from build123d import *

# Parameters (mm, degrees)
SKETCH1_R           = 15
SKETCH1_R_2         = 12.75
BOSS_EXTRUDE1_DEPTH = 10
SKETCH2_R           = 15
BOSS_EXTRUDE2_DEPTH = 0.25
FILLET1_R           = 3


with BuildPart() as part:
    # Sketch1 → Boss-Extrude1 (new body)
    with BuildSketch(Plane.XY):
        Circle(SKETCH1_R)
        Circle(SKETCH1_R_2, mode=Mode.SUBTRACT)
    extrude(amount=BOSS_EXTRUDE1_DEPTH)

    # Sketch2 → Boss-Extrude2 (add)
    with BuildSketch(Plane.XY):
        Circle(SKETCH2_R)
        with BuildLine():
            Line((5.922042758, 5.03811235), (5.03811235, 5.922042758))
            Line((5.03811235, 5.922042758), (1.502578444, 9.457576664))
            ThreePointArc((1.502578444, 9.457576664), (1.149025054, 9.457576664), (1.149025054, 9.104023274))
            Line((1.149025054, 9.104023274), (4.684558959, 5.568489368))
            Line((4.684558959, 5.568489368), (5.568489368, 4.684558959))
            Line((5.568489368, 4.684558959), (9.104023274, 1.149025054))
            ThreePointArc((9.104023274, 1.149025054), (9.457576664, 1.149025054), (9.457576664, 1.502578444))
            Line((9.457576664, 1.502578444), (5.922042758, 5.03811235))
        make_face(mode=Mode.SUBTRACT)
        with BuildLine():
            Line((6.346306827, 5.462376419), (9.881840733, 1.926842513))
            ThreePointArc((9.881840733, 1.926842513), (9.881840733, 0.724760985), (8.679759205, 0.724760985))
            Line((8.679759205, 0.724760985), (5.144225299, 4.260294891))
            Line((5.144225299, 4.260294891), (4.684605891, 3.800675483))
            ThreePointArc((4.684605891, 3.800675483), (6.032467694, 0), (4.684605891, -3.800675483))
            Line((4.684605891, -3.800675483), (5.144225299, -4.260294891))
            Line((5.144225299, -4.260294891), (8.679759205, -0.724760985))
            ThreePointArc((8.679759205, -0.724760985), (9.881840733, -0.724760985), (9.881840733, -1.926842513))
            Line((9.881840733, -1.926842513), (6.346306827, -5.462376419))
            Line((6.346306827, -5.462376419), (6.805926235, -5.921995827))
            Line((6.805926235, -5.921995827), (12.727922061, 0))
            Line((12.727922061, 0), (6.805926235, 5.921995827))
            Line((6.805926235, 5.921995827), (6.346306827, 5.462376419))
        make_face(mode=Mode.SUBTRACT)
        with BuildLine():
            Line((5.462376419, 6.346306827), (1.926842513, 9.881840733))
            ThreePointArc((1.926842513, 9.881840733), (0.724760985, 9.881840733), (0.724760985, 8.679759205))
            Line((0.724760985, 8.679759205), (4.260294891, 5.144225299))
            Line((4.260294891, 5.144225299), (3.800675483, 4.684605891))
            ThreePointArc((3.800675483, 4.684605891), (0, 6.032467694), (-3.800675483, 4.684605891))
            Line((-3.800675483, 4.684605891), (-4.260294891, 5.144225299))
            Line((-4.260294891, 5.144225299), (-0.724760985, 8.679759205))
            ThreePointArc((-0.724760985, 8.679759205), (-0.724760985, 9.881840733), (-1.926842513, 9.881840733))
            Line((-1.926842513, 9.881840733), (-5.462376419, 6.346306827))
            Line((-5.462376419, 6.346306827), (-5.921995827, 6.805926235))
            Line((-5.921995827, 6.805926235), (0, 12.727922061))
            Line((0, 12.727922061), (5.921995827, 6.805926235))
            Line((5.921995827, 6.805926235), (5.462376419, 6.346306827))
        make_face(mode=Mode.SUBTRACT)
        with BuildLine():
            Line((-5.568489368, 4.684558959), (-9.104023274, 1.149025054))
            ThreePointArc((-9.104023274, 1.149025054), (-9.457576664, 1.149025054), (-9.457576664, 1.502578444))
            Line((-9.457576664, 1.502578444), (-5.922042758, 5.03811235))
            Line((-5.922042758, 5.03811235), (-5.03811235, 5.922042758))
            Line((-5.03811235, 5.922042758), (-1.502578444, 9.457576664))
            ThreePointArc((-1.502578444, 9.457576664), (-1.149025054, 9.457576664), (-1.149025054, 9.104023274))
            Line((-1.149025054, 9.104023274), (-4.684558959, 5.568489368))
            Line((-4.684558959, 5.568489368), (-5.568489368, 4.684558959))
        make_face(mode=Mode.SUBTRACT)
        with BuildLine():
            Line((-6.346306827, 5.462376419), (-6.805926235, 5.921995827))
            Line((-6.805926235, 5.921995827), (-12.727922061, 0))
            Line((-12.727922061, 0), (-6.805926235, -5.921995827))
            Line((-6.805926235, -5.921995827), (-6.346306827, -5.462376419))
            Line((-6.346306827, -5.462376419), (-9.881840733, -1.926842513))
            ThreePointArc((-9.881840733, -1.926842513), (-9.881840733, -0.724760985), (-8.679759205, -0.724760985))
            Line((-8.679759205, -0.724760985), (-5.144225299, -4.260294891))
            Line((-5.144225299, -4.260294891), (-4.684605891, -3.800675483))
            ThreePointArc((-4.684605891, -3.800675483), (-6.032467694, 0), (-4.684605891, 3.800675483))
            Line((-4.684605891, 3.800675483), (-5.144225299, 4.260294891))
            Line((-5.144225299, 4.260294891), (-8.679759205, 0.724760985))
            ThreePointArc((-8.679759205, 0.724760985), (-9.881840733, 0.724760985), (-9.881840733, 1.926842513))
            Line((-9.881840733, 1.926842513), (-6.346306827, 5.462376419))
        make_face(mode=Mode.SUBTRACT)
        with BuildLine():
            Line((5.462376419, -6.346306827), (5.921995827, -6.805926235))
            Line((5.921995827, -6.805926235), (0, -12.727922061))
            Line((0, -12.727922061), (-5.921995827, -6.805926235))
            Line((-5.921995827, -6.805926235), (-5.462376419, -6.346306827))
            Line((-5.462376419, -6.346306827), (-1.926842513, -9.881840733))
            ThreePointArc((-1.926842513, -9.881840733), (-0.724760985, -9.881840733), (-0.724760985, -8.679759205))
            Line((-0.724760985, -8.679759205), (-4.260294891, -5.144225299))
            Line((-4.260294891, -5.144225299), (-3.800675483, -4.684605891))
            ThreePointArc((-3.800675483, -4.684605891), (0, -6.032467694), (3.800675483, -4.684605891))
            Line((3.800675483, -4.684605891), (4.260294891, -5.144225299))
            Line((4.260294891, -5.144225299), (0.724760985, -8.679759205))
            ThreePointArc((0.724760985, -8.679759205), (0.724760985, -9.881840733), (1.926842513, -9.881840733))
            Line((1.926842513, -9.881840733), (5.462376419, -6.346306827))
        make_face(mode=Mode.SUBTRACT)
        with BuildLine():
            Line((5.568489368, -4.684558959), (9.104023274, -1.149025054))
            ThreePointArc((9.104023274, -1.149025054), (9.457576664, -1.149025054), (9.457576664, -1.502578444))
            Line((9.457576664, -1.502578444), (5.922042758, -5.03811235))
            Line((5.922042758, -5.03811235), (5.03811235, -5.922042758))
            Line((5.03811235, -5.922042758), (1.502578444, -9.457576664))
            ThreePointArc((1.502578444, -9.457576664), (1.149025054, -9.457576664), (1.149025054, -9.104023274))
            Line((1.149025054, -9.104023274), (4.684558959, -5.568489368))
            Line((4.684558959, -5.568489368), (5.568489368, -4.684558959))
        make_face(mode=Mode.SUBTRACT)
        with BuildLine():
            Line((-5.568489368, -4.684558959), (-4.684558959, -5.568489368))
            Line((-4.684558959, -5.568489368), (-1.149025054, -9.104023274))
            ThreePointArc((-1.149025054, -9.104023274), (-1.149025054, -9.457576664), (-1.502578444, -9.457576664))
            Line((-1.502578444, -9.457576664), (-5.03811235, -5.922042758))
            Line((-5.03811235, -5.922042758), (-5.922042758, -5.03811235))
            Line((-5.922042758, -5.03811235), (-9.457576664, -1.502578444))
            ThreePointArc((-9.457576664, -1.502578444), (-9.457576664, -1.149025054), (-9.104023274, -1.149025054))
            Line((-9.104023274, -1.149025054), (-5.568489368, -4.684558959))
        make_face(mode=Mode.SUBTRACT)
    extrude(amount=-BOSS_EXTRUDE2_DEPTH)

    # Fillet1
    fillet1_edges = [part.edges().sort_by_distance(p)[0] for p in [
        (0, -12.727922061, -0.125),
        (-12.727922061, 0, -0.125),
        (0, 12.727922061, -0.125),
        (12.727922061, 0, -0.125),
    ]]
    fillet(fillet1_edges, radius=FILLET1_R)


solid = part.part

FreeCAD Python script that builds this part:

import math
import FreeCAD as App
import Part
import Sketcher
from FreeCAD import Vector
Q = App.Units.Quantity


def edges_at(feature, points):
    """Names of the edges that pass closest to the given points."""
    edges = feature.Shape.Edges
    near = lambda p: min(range(len(edges)), key=lambda i: edges[i].distToShape(Part.Vertex(*p))[0])
    return sorted({f"Edge{near(p) + 1}" for p in points})

doc = App.newDocument("Part")
params = doc.addObject("Spreadsheet::Sheet", "Params")
for row, (alias, value) in enumerate([
    ("sketch1_diameter", "30 mm"),
    ("sketch1_diameter2", "25.5 mm"),
    ("pad1_length", "10 mm"),
    ("sketch2_diameter", "30 mm"),
    ("sketch2_radius", "0.25 mm"),
    ("sketch2_radius2", "0.85 mm"),
    ("sketch2_length", "5 mm"),
    ("sketch2_length2", "0.65 mm"),
    ("pad2_length", "0.25 mm"),
    ("fillet_radius", "3 mm"),
], start=1):
    params.set(f"A{row}", alias)
    params.set(f"B{row}", "=" + value)
    params.setAlias(f"B{row}", alias)

body = doc.addObject("PartDesign::Body", "Body")

# Sketch on XY plane
sketch1 = doc.addObject("Sketcher::SketchObject", "Sketch")
body.addObject(sketch1)
sketch1.AttachmentSupport = (doc.XY_Plane, [""])
sketch1.MapMode = "FlatFace"
sketch1.addGeometry(Part.Circle(Vector(0, 0, 0), Vector(0, 0, 1), 15), False)
sketch1.addGeometry(Part.Circle(Vector(0, 0, 0), Vector(0, 0, 1), 12.75), False)
sketch1.addConstraint(Sketcher.Constraint("Coincident", 0, 3, -1, 1))
sketch1.addConstraint(Sketcher.Constraint("Coincident", 1, 3, -1, 1))
sketch1.addConstraint(Sketcher.Constraint("Diameter", 0, Q("30 mm")))
sketch1.addConstraint(Sketcher.Constraint("Diameter", 1, Q("25.5 mm")))
sketch1.setExpression("Constraints[2]", "Params.sketch1_diameter")
sketch1.setExpression("Constraints[3]", "Params.sketch1_diameter2")
pad1 = doc.addObject("PartDesign::Pad", "Pad")
body.addObject(pad1)
pad1.Profile = sketch1
pad1.setExpression("Length", "Params.pad1_length")

# Sketch on XY plane
sketch2 = doc.addObject("Sketcher::SketchObject", "Sketch001")
body.addObject(sketch2)
sketch2.AttachmentSupport = (doc.XY_Plane, [""])
sketch2.MapMode = "FlatFace"
sketch2.addGeometry(Part.Circle(Vector(0, 0, 0), Vector(0, 0, 1), 15), False)
sketch2.addGeometry(Part.LineSegment(Vector(-9.104023, -1.149025, 0), Vector(-5.568489, -4.684559, 0)), False)
sketch2.addGeometry(Part.LineSegment(Vector(-5.568489, -4.684559, 0), Vector(-4.684559, -5.568489, 0)), False)
sketch2.addGeometry(Part.LineSegment(Vector(-4.684559, -5.568489, 0), Vector(-1.149025, -9.104023, 0)), False)
sketch2.addGeometry(Part.ArcOfCircle(Part.Circle(Vector(-1.325802, -9.2808, 0), Vector(0, 0, 1), 0.25), math.radians(-135), math.radians(45)), False)
sketch2.addGeometry(Part.LineSegment(Vector(-1.502578, -9.457577, 0), Vector(-9.457577, -1.502578, 0)), False)
sketch2.addGeometry(Part.ArcOfCircle(Part.Circle(Vector(-9.2808, -1.325802, 0), Vector(0, 0, 1), 0.25), math.radians(45), math.radians(225)), False)
sketch2.addGeometry(Part.LineSegment(Vector(1.926843, -9.881841, 0), Vector(5.462376, -6.346307, 0)), False)
sketch2.addGeometry(Part.LineSegment(Vector(5.462376, -6.346307, 0), Vector(5.921996, -6.805926, 0)), False)
sketch2.addGeometry(Part.LineSegment(Vector(5.921996, -6.805926, 0), Vector(0, -12.727922, 0)), False)
sketch2.addGeometry(Part.LineSegment(Vector(0, -12.727922, 0), Vector(-5.921996, -6.805926, 0)), False)
sketch2.addGeometry(Part.LineSegment(Vector(-5.921996, -6.805926, 0), Vector(-5.462376, -6.346307, 0)), False)
sketch2.addGeometry(Part.LineSegment(Vector(-5.462376, -6.346307, 0), Vector(-1.926843, -9.881841, 0)), False)
sketch2.addGeometry(Part.ArcOfCircle(Part.Circle(Vector(-1.325802, -9.2808, 0), Vector(0, 0, 1), 0.85), math.radians(-135), math.radians(45)), False)
sketch2.addGeometry(Part.LineSegment(Vector(-0.724761, -8.679759, 0), Vector(-4.260295, -5.144225, 0)), False)
sketch2.addGeometry(Part.LineSegment(Vector(-4.260295, -5.144225, 0), Vector(-3.800675, -4.684606, 0)), False)
sketch2.addGeometry(Part.ArcOfCircle(Part.Circle(Vector(0, 0, 0), Vector(0, 0, 1), 6.032468), math.radians(-129.052823), math.radians(-50.947177)), False)
sketch2.addGeometry(Part.LineSegment(Vector(3.800675, -4.684606, 0), Vector(4.260295, -5.144225, 0)), False)
sketch2.addGeometry(Part.LineSegment(Vector(4.260295, -5.144225, 0), Vector(0.724761, -8.679759, 0)), False)
sketch2.addGeometry(Part.ArcOfCircle(Part.Circle(Vector(1.325802, -9.2808, 0), Vector(0, 0, 1), 0.85), math.radians(135), math.radians(315)), False)
sketch2.addGeometry(Part.LineSegment(Vector(4.684559, -5.568489, 0), Vector(5.568489, -4.684559, 0)), False)
sketch2.addGeometry(Part.LineSegment(Vector(5.568489, -4.684559, 0), Vector(9.104023, -1.149025, 0)), False)
sketch2.addGeometry(Part.ArcOfCircle(Part.Circle(Vector(9.2808, -1.325802, 0), Vector(0, 0, 1), 0.25), math.radians(-45), math.radians(135)), False)
sketch2.addGeometry(Part.LineSegment(Vector(9.457577, -1.502578, 0), Vector(1.502578, -9.457577, 0)), False)
sketch2.addGeometry(Part.ArcOfCircle(Part.Circle(Vector(1.325802, -9.2808, 0), Vector(0, 0, 1), 0.25), math.radians(135), math.radians(315)), False)
sketch2.addGeometry(Part.LineSegment(Vector(1.149025, -9.104023, 0), Vector(4.684559, -5.568489, 0)), False)
sketch2.addGeometry(Part.LineSegment(Vector(-6.805926, 5.921996, 0), Vector(-6.346307, 5.462376, 0)), False)
sketch2.addGeometry(Part.LineSegment(Vector(-6.346307, 5.462376, 0), Vector(-9.881841, 1.926843, 0)), False)
sketch2.addGeometry(Part.ArcOfCircle(Part.Circle(Vector(-9.2808, 1.325802, 0), Vector(0, 0, 1), 0.85), math.radians(135), math.radians(315)), False)
sketch2.addGeometry(Part.LineSegment(Vector(-8.679759, 0.724761, 0), Vector(-5.144225, 4.260295, 0)), False)
sketch2.addGeometry(Part.LineSegment(Vector(-5.144225, 4.260295, 0), Vector(-4.684606, 3.800675, 0)), False)
sketch2.addGeometry(Part.ArcOfCircle(Part.Circle(Vector(0, 0, 0), Vector(0, 0, 1), 6.032468), math.radians(140.947177), math.radians(219.052823)), False)
sketch2.addGeometry(Part.LineSegment(Vector(-4.684606, -3.800675, 0), Vector(-5.144225, -4.260295, 0)), False)
sketch2.addGeometry(Part.LineSegment(Vector(-5.144225, -4.260295, 0), Vector(-8.679759, -0.724761, 0)), False)
sketch2.addGeometry(Part.ArcOfCircle(Part.Circle(Vector(-9.2808, -1.325802, 0), Vector(0, 0, 1), 0.85), math.radians(45), math.radians(225)), False)
sketch2.addGeometry(Part.LineSegment(Vector(-9.881841, -1.926843, 0), Vector(-6.346307, -5.462376, 0)), False)
sketch2.addGeometry(Part.LineSegment(Vector(-6.346307, -5.462376, 0), Vector(-6.805926, -5.921996, 0)), False)
sketch2.addGeometry(Part.LineSegment(Vector(-6.805926, -5.921996, 0), Vector(-12.727922, 0, 0)), False)
sketch2.addGeometry(Part.LineSegment(Vector(-12.727922, 0, 0), Vector(-6.805926, 5.921996, 0)), False)
sketch2.addGeometry(Part.LineSegment(Vector(-4.684559, 5.568489, 0), Vector(-5.568489, 4.684559, 0)), False)
sketch2.addGeometry(Part.LineSegment(Vector(-5.568489, 4.684559, 0), Vector(-9.104023, 1.149025, 0)), False)
sketch2.addGeometry(Part.ArcOfCircle(Part.Circle(Vector(-9.2808, 1.325802, 0), Vector(0, 0, 1), 0.25), math.radians(135), math.radians(315)), False)
sketch2.addGeometry(Part.LineSegment(Vector(-9.457577, 1.502578, 0), Vector(-1.502578, 9.457577, 0)), False)
sketch2.addGeometry(Part.ArcOfCircle(Part.Circle(Vector(-1.325802, 9.2808, 0), Vector(0, 0, 1), 0.25), math.radians(-45), math.radians(135)), False)
sketch2.addGeometry(Part.LineSegment(Vector(-1.149025, 9.104023, 0), Vector(-4.684559, 5.568489, 0)), False)
sketch2.addGeometry(Part.ArcOfCircle(Part.Circle(Vector(1.325802, 9.2808, 0), Vector(0, 0, 1), 0.25), math.radians(45), math.radians(225)), False)
sketch2.addGeometry(Part.LineSegment(Vector(1.502578, 9.457577, 0), Vector(9.457577, 1.502578, 0)), False)
sketch2.addGeometry(Part.ArcOfCircle(Part.Circle(Vector(9.2808, 1.325802, 0), Vector(0, 0, 1), 0.25), math.radians(-135), math.radians(45)), False)
sketch2.addGeometry(Part.LineSegment(Vector(9.104023, 1.149025, 0), Vector(5.568489, 4.684559, 0)), False)
sketch2.addGeometry(Part.LineSegment(Vector(5.568489, 4.684559, 0), Vector(4.684559, 5.568489, 0)), False)
sketch2.addGeometry(Part.LineSegment(Vector(4.684559, 5.568489, 0), Vector(1.149025, 9.104023, 0)), False)
sketch2.addGeometry(Part.LineSegment(Vector(9.881841, 1.926843, 0), Vector(6.346307, 5.462376, 0)), False)
sketch2.addGeometry(Part.LineSegment(Vector(6.346307, 5.462376, 0), Vector(6.805926, 5.921996, 0)), False)
sketch2.addGeometry(Part.LineSegment(Vector(6.805926, 5.921996, 0), Vector(12.727922, 0, 0)), False)
sketch2.addGeometry(Part.LineSegment(Vector(12.727922, 0, 0), Vector(6.805926, -5.921996, 0)), False)
sketch2.addGeometry(Part.LineSegment(Vector(6.805926, -5.921996, 0), Vector(6.346307, -5.462376, 0)), False)
sketch2.addGeometry(Part.LineSegment(Vector(6.346307, -5.462376, 0), Vector(9.881841, -1.926843, 0)), False)
sketch2.addGeometry(Part.ArcOfCircle(Part.Circle(Vector(9.2808, -1.325802, 0), Vector(0, 0, 1), 0.85), math.radians(-45), math.radians(135)), False)
sketch2.addGeometry(Part.LineSegment(Vector(8.679759, -0.724761, 0), Vector(5.144225, -4.260295, 0)), False)
sketch2.addGeometry(Part.LineSegment(Vector(5.144225, -4.260295, 0), Vector(4.684606, -3.800675, 0)), False)
sketch2.addGeometry(Part.ArcOfCircle(Part.Circle(Vector(0, 0, 0), Vector(0, 0, 1), 6.032468), math.radians(-39.052823), math.radians(39.052823)), False)
sketch2.addGeometry(Part.LineSegment(Vector(4.684606, 3.800675, 0), Vector(5.144225, 4.260295, 0)), False)
sketch2.addGeometry(Part.LineSegment(Vector(5.144225, 4.260295, 0), Vector(8.679759, 0.724761, 0)), False)
sketch2.addGeometry(Part.ArcOfCircle(Part.Circle(Vector(9.2808, 1.325802, 0), Vector(0, 0, 1), 0.85), math.radians(-135), math.radians(45)), False)
sketch2.addGeometry(Part.LineSegment(Vector(5.921996, 6.805926, 0), Vector(5.462376, 6.346307, 0)), False)
sketch2.addGeometry(Part.LineSegment(Vector(5.462376, 6.346307, 0), Vector(1.926843, 9.881841, 0)), False)
sketch2.addGeometry(Part.ArcOfCircle(Part.Circle(Vector(1.325802, 9.2808, 0), Vector(0, 0, 1), 0.85), math.radians(45), math.radians(225)), False)
sketch2.addGeometry(Part.LineSegment(Vector(0.724761, 8.679759, 0), Vector(4.260295, 5.144225, 0)), False)
sketch2.addGeometry(Part.LineSegment(Vector(4.260295, 5.144225, 0), Vector(3.800675, 4.684606, 0)), False)
sketch2.addGeometry(Part.ArcOfCircle(Part.Circle(Vector(0, 0, 0), Vector(0, 0, 1), 6.032468), math.radians(50.947177), math.radians(129.052823)), False)
sketch2.addGeometry(Part.LineSegment(Vector(-3.800675, 4.684606, 0), Vector(-4.260295, 5.144225, 0)), False)
sketch2.addGeometry(Part.LineSegment(Vector(-4.260295, 5.144225, 0), Vector(-0.724761, 8.679759, 0)), False)
sketch2.addGeometry(Part.ArcOfCircle(Part.Circle(Vector(-1.325802, 9.2808, 0), Vector(0, 0, 1), 0.85), math.radians(-45), math.radians(135)), False)
sketch2.addGeometry(Part.LineSegment(Vector(-1.926843, 9.881841, 0), Vector(-5.462376, 6.346307, 0)), False)
sketch2.addGeometry(Part.LineSegment(Vector(-5.462376, 6.346307, 0), Vector(-5.921996, 6.805926, 0)), False)
sketch2.addGeometry(Part.LineSegment(Vector(-5.921996, 6.805926, 0), Vector(0, 12.727922, 0)), False)
sketch2.addGeometry(Part.LineSegment(Vector(0, 12.727922, 0), Vector(5.921996, 6.805926, 0)), False)
sketch2.addConstraint(Sketcher.Constraint("Coincident", 1, 2, 2, 1))
sketch2.addConstraint(Sketcher.Constraint("Coincident", 2, 2, 3, 1))
sketch2.addConstraint(Sketcher.Constraint("Tangent", 3, 2, 4, 2))
sketch2.addConstraint(Sketcher.Constraint("Tangent", 4, 1, 5, 1))
sketch2.addConstraint(Sketcher.Constraint("Tangent", 5, 2, 6, 2))
sketch2.addConstraint(Sketcher.Constraint("Tangent", 6, 1, 1, 1))
sketch2.addConstraint(Sketcher.Constraint("Coincident", 7, 2, 8, 1))
sketch2.addConstraint(Sketcher.Constraint("Coincident", 8, 2, 9, 1))
sketch2.addConstraint(Sketcher.Constraint("Coincident", 9, 2, 10, 1))
sketch2.addConstraint(Sketcher.Constraint("Coincident", 10, 2, 11, 1))
sketch2.addConstraint(Sketcher.Constraint("Coincident", 11, 2, 12, 1))
sketch2.addConstraint(Sketcher.Constraint("Tangent", 12, 2, 13, 1))
sketch2.addConstraint(Sketcher.Constraint("Tangent", 13, 2, 14, 1))
sketch2.addConstraint(Sketcher.Constraint("Coincident", 14, 2, 15, 1))
sketch2.addConstraint(Sketcher.Constraint("Coincident", 15, 2, 16, 1))
sketch2.addConstraint(Sketcher.Constraint("Coincident", 16, 2, 17, 1))
sketch2.addConstraint(Sketcher.Constraint("Coincident", 17, 2, 18, 1))
sketch2.addConstraint(Sketcher.Constraint("Tangent", 18, 2, 19, 1))
sketch2.addConstraint(Sketcher.Constraint("Tangent", 19, 2, 7, 1))
sketch2.addConstraint(Sketcher.Constraint("Coincident", 20, 2, 21, 1))
sketch2.addConstraint(Sketcher.Constraint("Tangent", 21, 2, 22, 2))
sketch2.addConstraint(Sketcher.Constraint("Tangent", 22, 1, 23, 1))
sketch2.addConstraint(Sketcher.Constraint("Tangent", 23, 2, 24, 2))
sketch2.addConstraint(Sketcher.Constraint("Tangent", 24, 1, 25, 1))
sketch2.addConstraint(Sketcher.Constraint("Coincident", 25, 2, 20, 1))
sketch2.addConstraint(Sketcher.Constraint("Coincident", 26, 2, 27, 1))
sketch2.addConstraint(Sketcher.Constraint("Tangent", 27, 2, 28, 1))
sketch2.addConstraint(Sketcher.Constraint("Tangent", 28, 2, 29, 1))
sketch2.addConstraint(Sketcher.Constraint("Coincident", 29, 2, 30, 1))
sketch2.addConstraint(Sketcher.Constraint("Coincident", 30, 2, 31, 1))
sketch2.addConstraint(Sketcher.Constraint("Coincident", 31, 2, 32, 1))
sketch2.addConstraint(Sketcher.Constraint("Coincident", 32, 2, 33, 1))
sketch2.addConstraint(Sketcher.Constraint("Tangent", 33, 2, 34, 1))
sketch2.addConstraint(Sketcher.Constraint("Tangent", 34, 2, 35, 1))
sketch2.addConstraint(Sketcher.Constraint("Coincident", 35, 2, 36, 1))
sketch2.addConstraint(Sketcher.Constraint("Coincident", 36, 2, 37, 1))
sketch2.addConstraint(Sketcher.Constraint("Coincident", 37, 2, 38, 1))
sketch2.addConstraint(Sketcher.Constraint("Coincident", 38, 2, 26, 1))
sketch2.addConstraint(Sketcher.Constraint("Coincident", 39, 2, 40, 1))
sketch2.addConstraint(Sketcher.Constraint("Tangent", 40, 2, 41, 2))
sketch2.addConstraint(Sketcher.Constraint("Tangent", 41, 1, 42, 1))
sketch2.addConstraint(Sketcher.Constraint("Tangent", 42, 2, 43, 2))
sketch2.addConstraint(Sketcher.Constraint("Tangent", 43, 1, 44, 1))
sketch2.addConstraint(Sketcher.Constraint("Coincident", 44, 2, 39, 1))
sketch2.addConstraint(Sketcher.Constraint("Tangent", 45, 1, 46, 1))
sketch2.addConstraint(Sketcher.Constraint("Tangent", 46, 2, 47, 2))
sketch2.addConstraint(Sketcher.Constraint("Tangent", 47, 1, 48, 1))
sketch2.addConstraint(Sketcher.Constraint("Coincident", 48, 2, 49, 1))
sketch2.addConstraint(Sketcher.Constraint("Coincident", 49, 2, 50, 1))
sketch2.addConstraint(Sketcher.Constraint("Tangent", 50, 2, 45, 2))
sketch2.addConstraint(Sketcher.Constraint("Coincident", 51, 2, 52, 1))
sketch2.addConstraint(Sketcher.Constraint("Coincident", 52, 2, 53, 1))
sketch2.addConstraint(Sketcher.Constraint("Coincident", 53, 2, 54, 1))
sketch2.addConstraint(Sketcher.Constraint("Coincident", 54, 2, 55, 1))
sketch2.addConstraint(Sketcher.Constraint("Coincident", 55, 2, 56, 1))
sketch2.addConstraint(Sketcher.Constraint("Tangent", 56, 2, 57, 1))
sketch2.addConstraint(Sketcher.Constraint("Tangent", 57, 2, 58, 1))
sketch2.addConstraint(Sketcher.Constraint("Coincident", 58, 2, 59, 1))
sketch2.addConstraint(Sketcher.Constraint("Coincident", 59, 2, 60, 1))
sketch2.addConstraint(Sketcher.Constraint("Coincident", 60, 2, 61, 1))
sketch2.addConstraint(Sketcher.Constraint("Coincident", 61, 2, 62, 1))
sketch2.addConstraint(Sketcher.Constraint("Tangent", 62, 2, 63, 1))
sketch2.addConstraint(Sketcher.Constraint("Tangent", 63, 2, 51, 1))
sketch2.addConstraint(Sketcher.Constraint("Coincident", 64, 2, 65, 1))
sketch2.addConstraint(Sketcher.Constraint("Tangent", 65, 2, 66, 1))
sketch2.addConstraint(Sketcher.Constraint("Tangent", 66, 2, 67, 1))
sketch2.addConstraint(Sketcher.Constraint("Coincident", 67, 2, 68, 1))
sketch2.addConstraint(Sketcher.Constraint("Coincident", 68, 2, 69, 1))
sketch2.addConstraint(Sketcher.Constraint("Coincident", 69, 2, 70, 1))
sketch2.addConstraint(Sketcher.Constraint("Coincident", 70, 2, 71, 1))
sketch2.addConstraint(Sketcher.Constraint("Tangent", 71, 2, 72, 1))
sketch2.addConstraint(Sketcher.Constraint("Tangent", 72, 2, 73, 1))
sketch2.addConstraint(Sketcher.Constraint("Coincident", 73, 2, 74, 1))
sketch2.addConstraint(Sketcher.Constraint("Coincident", 74, 2, 75, 1))
sketch2.addConstraint(Sketcher.Constraint("Coincident", 75, 2, 76, 1))
sketch2.addConstraint(Sketcher.Constraint("Coincident", 76, 2, 64, 1))
sketch2.addConstraint(Sketcher.Constraint("Coincident", 0, 3, -1, 1))
sketch2.addConstraint(Sketcher.Constraint("Coincident", 16, 3, -1, 1))
sketch2.addConstraint(Sketcher.Constraint("Coincident", 31, 3, -1, 1))
sketch2.addConstraint(Sketcher.Constraint("Coincident", 60, 3, -1, 1))
sketch2.addConstraint(Sketcher.Constraint("Coincident", 69, 3, -1, 1))
sketch2.addConstraint(Sketcher.Constraint("Coincident", 13, 3, 4, 3))
sketch2.addConstraint(Sketcher.Constraint("Coincident", 24, 3, 19, 3))
sketch2.addConstraint(Sketcher.Constraint("Coincident", 34, 3, 6, 3))
sketch2.addConstraint(Sketcher.Constraint("Coincident", 41, 3, 28, 3))
sketch2.addConstraint(Sketcher.Constraint("Coincident", 57, 3, 22, 3))
sketch2.addConstraint(Sketcher.Constraint("Coincident", 63, 3, 47, 3))
sketch2.addConstraint(Sketcher.Constraint("Coincident", 66, 3, 45, 3))
sketch2.addConstraint(Sketcher.Constraint("Coincident", 72, 3, 43, 3))
sketch2.addConstraint(Sketcher.Constraint("Equal", 4, 6))
sketch2.addConstraint(Sketcher.Constraint("Equal", 13, 19))
sketch2.addConstraint(Sketcher.Constraint("Equal", 6, 22))
sketch2.addConstraint(Sketcher.Constraint("Equal", 22, 24))
sketch2.addConstraint(Sketcher.Constraint("Equal", 19, 28))
sketch2.addConstraint(Sketcher.Constraint("Equal", 16, 31))
sketch2.addConstraint(Sketcher.Constraint("Equal", 28, 34))
sketch2.addConstraint(Sketcher.Constraint("Equal", 24, 41))
sketch2.addConstraint(Sketcher.Constraint("Equal", 41, 43))
sketch2.addConstraint(Sketcher.Constraint("Equal", 43, 45))
sketch2.addConstraint(Sketcher.Constraint("Equal", 45, 47))
sketch2.addConstraint(Sketcher.Constraint("Equal", 34, 57))
sketch2.addConstraint(Sketcher.Constraint("Equal", 31, 60))
sketch2.addConstraint(Sketcher.Constraint("Equal", 57, 63))
sketch2.addConstraint(Sketcher.Constraint("Equal", 63, 66))
sketch2.addConstraint(Sketcher.Constraint("Equal", 60, 69))
sketch2.addConstraint(Sketcher.Constraint("Equal", 66, 72))
sketch2.addConstraint(Sketcher.Constraint("Symmetric", 22, 3, 28, 3, -1, 1))
sketch2.addConstraint(Sketcher.Constraint("Symmetric", 19, 3, 43, 3, -1, 1))
sketch2.addConstraint(Sketcher.Constraint("Symmetric", 4, 3, 45, 3, -1, 1))
sketch2.addConstraint(Sketcher.Constraint("Symmetric", 6, 3, 47, 3, -1, 1))
sketch2.addConstraint(Sketcher.Constraint("Symmetric", 20, 2, 39, 2, -1, 1))
sketch2.addConstraint(Sketcher.Constraint("Symmetric", 25, 2, 44, 2, -1, 1))
sketch2.addConstraint(Sketcher.Constraint("Symmetric", 1, 2, 48, 2, -1, 1))
sketch2.addConstraint(Sketcher.Constraint("Symmetric", 2, 2, 49, 2, -1, 1))
sketch2.addConstraint(Sketcher.Constraint("Symmetric", 35, 2, 51, 2, -1, 1))
sketch2.addConstraint(Sketcher.Constraint("Symmetric", 36, 2, 52, 2, -1, 1))
sketch2.addConstraint(Sketcher.Constraint("Symmetric", 37, 2, 53, 2, -1, 1))
sketch2.addConstraint(Sketcher.Constraint("Symmetric", 38, 2, 54, 2, -1, 1))
sketch2.addConstraint(Sketcher.Constraint("Symmetric", 26, 2, 55, 2, -1, 1))
sketch2.addConstraint(Sketcher.Constraint("Symmetric", 29, 2, 58, 2, -1, 1))
sketch2.addConstraint(Sketcher.Constraint("Symmetric", 32, 2, 61, 2, -1, 1))
sketch2.addConstraint(Sketcher.Constraint("Symmetric", 11, 2, 64, 2, -1, 1))
sketch2.addConstraint(Sketcher.Constraint("Symmetric", 14, 2, 67, 2, -1, 1))
sketch2.addConstraint(Sketcher.Constraint("Symmetric", 17, 2, 70, 2, -1, 1))
sketch2.addConstraint(Sketcher.Constraint("Symmetric", 7, 2, 73, 2, -1, 1))
sketch2.addConstraint(Sketcher.Constraint("Symmetric", 8, 2, 74, 2, -1, 1))
sketch2.addConstraint(Sketcher.Constraint("Symmetric", 9, 2, 75, 2, -1, 1))
sketch2.addConstraint(Sketcher.Constraint("Symmetric", 10, 2, 76, 2, -1, 1))
sketch2.addConstraint(Sketcher.Constraint("Symmetric", 4, 3, 19, 3, -2))
sketch2.addConstraint(Sketcher.Constraint("Symmetric", 6, 3, 22, 3, -2))
sketch2.addConstraint(Sketcher.Constraint("Symmetric", 8, 2, 10, 2, -2))
sketch2.addConstraint(Sketcher.Constraint("Symmetric", 7, 2, 11, 2, -2))
sketch2.addConstraint(Sketcher.Constraint("Symmetric", 14, 2, 17, 2, -2))
sketch2.addConstraint(Sketcher.Constraint("Symmetric", 1, 2, 20, 2, -2))
sketch2.addConstraint(Sketcher.Constraint("Symmetric", 2, 2, 25, 2, -2))
sketch2.addConstraint(Sketcher.Constraint("Symmetric", 26, 2, 51, 2, -2))
sketch2.addConstraint(Sketcher.Constraint("Symmetric", 38, 2, 52, 2, -2))
sketch2.addConstraint(Sketcher.Constraint("Symmetric", 32, 2, 58, 2, -2))
sketch2.addConstraint(Sketcher.Constraint("PointOnObject", 9, 2, -2))
sketch2.addConstraint(Sketcher.Constraint("PointOnObject", 37, 2, -1))
sketch2.addConstraint(Sketcher.Constraint("Parallel", 1, 2))
sketch2.addConstraint(Sketcher.Constraint("Parallel", 2, 3))
sketch2.addConstraint(Sketcher.Constraint("Perpendicular", 5, 7))
sketch2.addConstraint(Sketcher.Constraint("Perpendicular", 7, 8))
sketch2.addConstraint(Sketcher.Constraint("Perpendicular", 8, 9))
sketch2.addConstraint(Sketcher.Constraint("Perpendicular", 9, 10))
sketch2.addConstraint(Sketcher.Constraint("Parallel", 12, 14))
sketch2.addConstraint(Sketcher.Constraint("Perpendicular", 14, 15))
sketch2.addConstraint(Sketcher.Constraint("Perpendicular", 15, 17))
sketch2.addConstraint(Sketcher.Constraint("Perpendicular", 25, 26))
sketch2.addConstraint(Sketcher.Constraint("Perpendicular", 26, 27))
sketch2.addConstraint(Sketcher.Constraint("Parallel", 27, 29))
sketch2.addConstraint(Sketcher.Constraint("Perpendicular", 29, 30))
sketch2.addConstraint(Sketcher.Constraint("Perpendicular", 30, 32))
sketch2.addConstraint(Sketcher.Constraint("Perpendicular", 36, 37))
sketch2.addConstraint(Sketcher.Constraint("Perpendicular", 58, 59))
sketch2.addConstraint(Sketcher.Constraint("Perpendicular", 59, 61))
sketch2.addConstraint(Sketcher.Constraint("Perpendicular", 67, 68))
sketch2.addConstraint(Sketcher.Constraint("Perpendicular", 68, 70))
sketch2.addConstraint(Sketcher.Constraint("Equal", 1, 3))
sketch2.addConstraint(Sketcher.Constraint("Equal", 3, 7))
sketch2.addConstraint(Sketcher.Constraint("Equal", 12, 14))
sketch2.addConstraint(Sketcher.Constraint("Equal", 11, 15))
sketch2.addConstraint(Sketcher.Constraint("Equal", 17, 26))
sketch2.addConstraint(Sketcher.Constraint("Equal", 25, 27))
sketch2.addConstraint(Sketcher.Constraint("Equal", 27, 29))
sketch2.addConstraint(Sketcher.Constraint("Equal", 26, 30))
sketch2.addConstraint(Sketcher.Constraint("Diameter", 0, Q("30 mm")))
sketch2.addConstraint(Sketcher.Constraint("Radius", 4, Q("0.25 mm")))
sketch2.addConstraint(Sketcher.Constraint("Radius", 13, Q("0.85 mm")))
sketch2.addConstraint(Sketcher.Constraint("Distance", 1, Q("5 mm")))
sketch2.addConstraint(Sketcher.Constraint("Distance", 8, Q("0.65 mm")))
sketch2.addConstraint(Sketcher.Constraint("Radius", 16, Q("6.032468 mm")))
sketch2.addConstraint(Sketcher.Constraint("DistanceX", 4, 3, -1, 1, Q("1.325802 mm")))
sketch2.setExpression("Constraints[167]", "Params.sketch2_diameter")
sketch2.setExpression("Constraints[168]", "Params.sketch2_radius")
sketch2.setExpression("Constraints[169]", "Params.sketch2_radius2")
sketch2.setExpression("Constraints[170]", "Params.sketch2_length")
sketch2.setExpression("Constraints[171]", "Params.sketch2_length2")
pad2 = doc.addObject("PartDesign::Pad", "Pad001")
body.addObject(pad2)
pad2.Profile = sketch2
pad2.setExpression("Length", "Params.pad2_length")
pad2.Reversed = True
doc.recompute()

fillet = doc.addObject("PartDesign::Fillet", "Fillet")
body.addObject(fillet)
fillet.Base = (pad2, edges_at(pad2, [
    (0, -12.728, -0.125),
    (-12.728, 0, -0.125),
    (0, 12.728, -0.125),
    (12.728, 0, -0.125),
]))
fillet.setExpression("Radius", "Params.fillet_radius")

doc.recompute()
